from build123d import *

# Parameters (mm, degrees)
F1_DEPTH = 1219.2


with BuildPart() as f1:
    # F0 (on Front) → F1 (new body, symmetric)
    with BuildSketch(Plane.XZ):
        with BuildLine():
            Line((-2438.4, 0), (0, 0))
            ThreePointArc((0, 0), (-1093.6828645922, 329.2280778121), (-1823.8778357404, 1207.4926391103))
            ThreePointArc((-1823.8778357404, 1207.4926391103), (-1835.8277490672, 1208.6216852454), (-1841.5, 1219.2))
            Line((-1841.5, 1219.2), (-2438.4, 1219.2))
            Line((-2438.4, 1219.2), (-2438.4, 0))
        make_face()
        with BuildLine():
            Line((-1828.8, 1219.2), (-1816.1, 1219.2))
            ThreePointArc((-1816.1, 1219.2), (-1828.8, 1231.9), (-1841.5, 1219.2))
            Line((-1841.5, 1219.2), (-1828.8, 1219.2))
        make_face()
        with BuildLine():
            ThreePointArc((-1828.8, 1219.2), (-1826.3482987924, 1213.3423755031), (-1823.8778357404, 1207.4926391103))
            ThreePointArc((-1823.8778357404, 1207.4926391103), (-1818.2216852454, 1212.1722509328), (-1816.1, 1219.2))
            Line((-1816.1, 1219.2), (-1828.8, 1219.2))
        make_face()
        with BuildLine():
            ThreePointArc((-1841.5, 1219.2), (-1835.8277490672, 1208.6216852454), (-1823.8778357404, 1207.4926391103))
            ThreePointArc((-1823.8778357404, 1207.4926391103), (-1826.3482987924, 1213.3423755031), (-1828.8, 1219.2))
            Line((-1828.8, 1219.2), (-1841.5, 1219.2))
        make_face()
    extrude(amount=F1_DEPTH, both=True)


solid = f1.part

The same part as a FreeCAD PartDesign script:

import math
import FreeCAD as App
import Part
import Sketcher

V = App.Vector
Q = App.Units.Quantity

doc = App.newDocument("Part")
body = doc.addObject("PartDesign::Body", "Body")

# Sketch on XZ plane
sketch1 = body.newObject("Sketcher::SketchObject", "Sketch")
sketch1.AttachmentSupport = (doc.getObject("XZ_Plane"), [""])
sketch1.MapMode = "FlatFace"
sketch1.addGeometry(Part.LineSegment(V(-2438.4, 0, 0), V(0, 0, 0)), False)
sketch1.addGeometry(Part.ArcOfCircle(Part.Circle(V(0, 1981.2, 0), V(0, 0, 1), 1981.2), math.radians(-157.012854), math.radians(-90)), False)
sketch1.addGeometry(Part.ArcOfCircle(Part.Circle(V(-1828.8, 1219.2, 0), V(0, 0, 1), 12.7), math.radians(-67.196494), math.radians(0)), False)
sketch1.addGeometry(Part.ArcOfCircle(Part.Circle(V(-1828.8, 1219.2, 0), V(0, 0, 1), 12.7), math.radians(0), math.radians(180)), False)
sketch1.addGeometry(Part.LineSegment(V(-1841.5, 1219.2, 0), V(-2438.4, 1219.2, 0)), False)
sketch1.addGeometry(Part.LineSegment(V(-2438.4, 1219.2, 0), V(-2438.4, 0, 0)), False)
sketch1.addConstraint(Sketcher.Constraint("Coincident", 0, 2, 1, 2))
sketch1.addConstraint(Sketcher.Constraint("Coincident", 1, 1, 2, 1))
sketch1.addConstraint(Sketcher.Constraint("Tangent", 2, 2, 3, 1))
sketch1.addConstraint(Sketcher.Constraint("Coincident", 3, 2, 4, 1))
sketch1.addConstraint(Sketcher.Constraint("Coincident", 4, 2, 5, 1))
sketch1.addConstraint(Sketcher.Constraint("Coincident", 5, 2, 0, 1))
sketch1.addConstraint(Sketcher.Constraint("Horizontal", 0))
sketch1.addConstraint(Sketcher.Constraint("Horizontal", 4))
sketch1.addConstraint(Sketcher.Constraint("Vertical", 5))
sketch1.addConstraint(Sketcher.Constraint("Coincident", 0, 2, -1, 1))
sketch1.addConstraint(Sketcher.Constraint("Equal", 2, 3))
sketch1.addConstraint(Sketcher.Constraint("PointOnObject", 1, 3, -2))
sketch1.addConstraint(Sketcher.Constraint("Horizontal", 3, 3, 2, 2))
sketch1.addConstraint(Sketcher.Constraint("Horizontal", 2, 2, 3, 2))
sketch1.addConstraint(Sketcher.Constraint("Radius", 1, Q("78 in")))
sketch1.addConstraint(Sketcher.Constraint("Radius", 2, Q("0.5 in")))
sketch1.addConstraint(Sketcher.Constraint("DistanceX", 0, 1, 0, 2, Q("96 in")))
sketch1.addConstraint(Sketcher.Constraint("DistanceY", 5, 2, 5, 1, Q("48 in")))
sketch1.addConstraint(Sketcher.Constraint("DistanceX", 4, 2, 4, 1, Q("23.5 in")))
pad1 = body.newObject("PartDesign::Pad", "Pad")
pad1.Profile = sketch1
pad1.Length = Q("96 in")
pad1.Midplane = True

doc.recompute()
